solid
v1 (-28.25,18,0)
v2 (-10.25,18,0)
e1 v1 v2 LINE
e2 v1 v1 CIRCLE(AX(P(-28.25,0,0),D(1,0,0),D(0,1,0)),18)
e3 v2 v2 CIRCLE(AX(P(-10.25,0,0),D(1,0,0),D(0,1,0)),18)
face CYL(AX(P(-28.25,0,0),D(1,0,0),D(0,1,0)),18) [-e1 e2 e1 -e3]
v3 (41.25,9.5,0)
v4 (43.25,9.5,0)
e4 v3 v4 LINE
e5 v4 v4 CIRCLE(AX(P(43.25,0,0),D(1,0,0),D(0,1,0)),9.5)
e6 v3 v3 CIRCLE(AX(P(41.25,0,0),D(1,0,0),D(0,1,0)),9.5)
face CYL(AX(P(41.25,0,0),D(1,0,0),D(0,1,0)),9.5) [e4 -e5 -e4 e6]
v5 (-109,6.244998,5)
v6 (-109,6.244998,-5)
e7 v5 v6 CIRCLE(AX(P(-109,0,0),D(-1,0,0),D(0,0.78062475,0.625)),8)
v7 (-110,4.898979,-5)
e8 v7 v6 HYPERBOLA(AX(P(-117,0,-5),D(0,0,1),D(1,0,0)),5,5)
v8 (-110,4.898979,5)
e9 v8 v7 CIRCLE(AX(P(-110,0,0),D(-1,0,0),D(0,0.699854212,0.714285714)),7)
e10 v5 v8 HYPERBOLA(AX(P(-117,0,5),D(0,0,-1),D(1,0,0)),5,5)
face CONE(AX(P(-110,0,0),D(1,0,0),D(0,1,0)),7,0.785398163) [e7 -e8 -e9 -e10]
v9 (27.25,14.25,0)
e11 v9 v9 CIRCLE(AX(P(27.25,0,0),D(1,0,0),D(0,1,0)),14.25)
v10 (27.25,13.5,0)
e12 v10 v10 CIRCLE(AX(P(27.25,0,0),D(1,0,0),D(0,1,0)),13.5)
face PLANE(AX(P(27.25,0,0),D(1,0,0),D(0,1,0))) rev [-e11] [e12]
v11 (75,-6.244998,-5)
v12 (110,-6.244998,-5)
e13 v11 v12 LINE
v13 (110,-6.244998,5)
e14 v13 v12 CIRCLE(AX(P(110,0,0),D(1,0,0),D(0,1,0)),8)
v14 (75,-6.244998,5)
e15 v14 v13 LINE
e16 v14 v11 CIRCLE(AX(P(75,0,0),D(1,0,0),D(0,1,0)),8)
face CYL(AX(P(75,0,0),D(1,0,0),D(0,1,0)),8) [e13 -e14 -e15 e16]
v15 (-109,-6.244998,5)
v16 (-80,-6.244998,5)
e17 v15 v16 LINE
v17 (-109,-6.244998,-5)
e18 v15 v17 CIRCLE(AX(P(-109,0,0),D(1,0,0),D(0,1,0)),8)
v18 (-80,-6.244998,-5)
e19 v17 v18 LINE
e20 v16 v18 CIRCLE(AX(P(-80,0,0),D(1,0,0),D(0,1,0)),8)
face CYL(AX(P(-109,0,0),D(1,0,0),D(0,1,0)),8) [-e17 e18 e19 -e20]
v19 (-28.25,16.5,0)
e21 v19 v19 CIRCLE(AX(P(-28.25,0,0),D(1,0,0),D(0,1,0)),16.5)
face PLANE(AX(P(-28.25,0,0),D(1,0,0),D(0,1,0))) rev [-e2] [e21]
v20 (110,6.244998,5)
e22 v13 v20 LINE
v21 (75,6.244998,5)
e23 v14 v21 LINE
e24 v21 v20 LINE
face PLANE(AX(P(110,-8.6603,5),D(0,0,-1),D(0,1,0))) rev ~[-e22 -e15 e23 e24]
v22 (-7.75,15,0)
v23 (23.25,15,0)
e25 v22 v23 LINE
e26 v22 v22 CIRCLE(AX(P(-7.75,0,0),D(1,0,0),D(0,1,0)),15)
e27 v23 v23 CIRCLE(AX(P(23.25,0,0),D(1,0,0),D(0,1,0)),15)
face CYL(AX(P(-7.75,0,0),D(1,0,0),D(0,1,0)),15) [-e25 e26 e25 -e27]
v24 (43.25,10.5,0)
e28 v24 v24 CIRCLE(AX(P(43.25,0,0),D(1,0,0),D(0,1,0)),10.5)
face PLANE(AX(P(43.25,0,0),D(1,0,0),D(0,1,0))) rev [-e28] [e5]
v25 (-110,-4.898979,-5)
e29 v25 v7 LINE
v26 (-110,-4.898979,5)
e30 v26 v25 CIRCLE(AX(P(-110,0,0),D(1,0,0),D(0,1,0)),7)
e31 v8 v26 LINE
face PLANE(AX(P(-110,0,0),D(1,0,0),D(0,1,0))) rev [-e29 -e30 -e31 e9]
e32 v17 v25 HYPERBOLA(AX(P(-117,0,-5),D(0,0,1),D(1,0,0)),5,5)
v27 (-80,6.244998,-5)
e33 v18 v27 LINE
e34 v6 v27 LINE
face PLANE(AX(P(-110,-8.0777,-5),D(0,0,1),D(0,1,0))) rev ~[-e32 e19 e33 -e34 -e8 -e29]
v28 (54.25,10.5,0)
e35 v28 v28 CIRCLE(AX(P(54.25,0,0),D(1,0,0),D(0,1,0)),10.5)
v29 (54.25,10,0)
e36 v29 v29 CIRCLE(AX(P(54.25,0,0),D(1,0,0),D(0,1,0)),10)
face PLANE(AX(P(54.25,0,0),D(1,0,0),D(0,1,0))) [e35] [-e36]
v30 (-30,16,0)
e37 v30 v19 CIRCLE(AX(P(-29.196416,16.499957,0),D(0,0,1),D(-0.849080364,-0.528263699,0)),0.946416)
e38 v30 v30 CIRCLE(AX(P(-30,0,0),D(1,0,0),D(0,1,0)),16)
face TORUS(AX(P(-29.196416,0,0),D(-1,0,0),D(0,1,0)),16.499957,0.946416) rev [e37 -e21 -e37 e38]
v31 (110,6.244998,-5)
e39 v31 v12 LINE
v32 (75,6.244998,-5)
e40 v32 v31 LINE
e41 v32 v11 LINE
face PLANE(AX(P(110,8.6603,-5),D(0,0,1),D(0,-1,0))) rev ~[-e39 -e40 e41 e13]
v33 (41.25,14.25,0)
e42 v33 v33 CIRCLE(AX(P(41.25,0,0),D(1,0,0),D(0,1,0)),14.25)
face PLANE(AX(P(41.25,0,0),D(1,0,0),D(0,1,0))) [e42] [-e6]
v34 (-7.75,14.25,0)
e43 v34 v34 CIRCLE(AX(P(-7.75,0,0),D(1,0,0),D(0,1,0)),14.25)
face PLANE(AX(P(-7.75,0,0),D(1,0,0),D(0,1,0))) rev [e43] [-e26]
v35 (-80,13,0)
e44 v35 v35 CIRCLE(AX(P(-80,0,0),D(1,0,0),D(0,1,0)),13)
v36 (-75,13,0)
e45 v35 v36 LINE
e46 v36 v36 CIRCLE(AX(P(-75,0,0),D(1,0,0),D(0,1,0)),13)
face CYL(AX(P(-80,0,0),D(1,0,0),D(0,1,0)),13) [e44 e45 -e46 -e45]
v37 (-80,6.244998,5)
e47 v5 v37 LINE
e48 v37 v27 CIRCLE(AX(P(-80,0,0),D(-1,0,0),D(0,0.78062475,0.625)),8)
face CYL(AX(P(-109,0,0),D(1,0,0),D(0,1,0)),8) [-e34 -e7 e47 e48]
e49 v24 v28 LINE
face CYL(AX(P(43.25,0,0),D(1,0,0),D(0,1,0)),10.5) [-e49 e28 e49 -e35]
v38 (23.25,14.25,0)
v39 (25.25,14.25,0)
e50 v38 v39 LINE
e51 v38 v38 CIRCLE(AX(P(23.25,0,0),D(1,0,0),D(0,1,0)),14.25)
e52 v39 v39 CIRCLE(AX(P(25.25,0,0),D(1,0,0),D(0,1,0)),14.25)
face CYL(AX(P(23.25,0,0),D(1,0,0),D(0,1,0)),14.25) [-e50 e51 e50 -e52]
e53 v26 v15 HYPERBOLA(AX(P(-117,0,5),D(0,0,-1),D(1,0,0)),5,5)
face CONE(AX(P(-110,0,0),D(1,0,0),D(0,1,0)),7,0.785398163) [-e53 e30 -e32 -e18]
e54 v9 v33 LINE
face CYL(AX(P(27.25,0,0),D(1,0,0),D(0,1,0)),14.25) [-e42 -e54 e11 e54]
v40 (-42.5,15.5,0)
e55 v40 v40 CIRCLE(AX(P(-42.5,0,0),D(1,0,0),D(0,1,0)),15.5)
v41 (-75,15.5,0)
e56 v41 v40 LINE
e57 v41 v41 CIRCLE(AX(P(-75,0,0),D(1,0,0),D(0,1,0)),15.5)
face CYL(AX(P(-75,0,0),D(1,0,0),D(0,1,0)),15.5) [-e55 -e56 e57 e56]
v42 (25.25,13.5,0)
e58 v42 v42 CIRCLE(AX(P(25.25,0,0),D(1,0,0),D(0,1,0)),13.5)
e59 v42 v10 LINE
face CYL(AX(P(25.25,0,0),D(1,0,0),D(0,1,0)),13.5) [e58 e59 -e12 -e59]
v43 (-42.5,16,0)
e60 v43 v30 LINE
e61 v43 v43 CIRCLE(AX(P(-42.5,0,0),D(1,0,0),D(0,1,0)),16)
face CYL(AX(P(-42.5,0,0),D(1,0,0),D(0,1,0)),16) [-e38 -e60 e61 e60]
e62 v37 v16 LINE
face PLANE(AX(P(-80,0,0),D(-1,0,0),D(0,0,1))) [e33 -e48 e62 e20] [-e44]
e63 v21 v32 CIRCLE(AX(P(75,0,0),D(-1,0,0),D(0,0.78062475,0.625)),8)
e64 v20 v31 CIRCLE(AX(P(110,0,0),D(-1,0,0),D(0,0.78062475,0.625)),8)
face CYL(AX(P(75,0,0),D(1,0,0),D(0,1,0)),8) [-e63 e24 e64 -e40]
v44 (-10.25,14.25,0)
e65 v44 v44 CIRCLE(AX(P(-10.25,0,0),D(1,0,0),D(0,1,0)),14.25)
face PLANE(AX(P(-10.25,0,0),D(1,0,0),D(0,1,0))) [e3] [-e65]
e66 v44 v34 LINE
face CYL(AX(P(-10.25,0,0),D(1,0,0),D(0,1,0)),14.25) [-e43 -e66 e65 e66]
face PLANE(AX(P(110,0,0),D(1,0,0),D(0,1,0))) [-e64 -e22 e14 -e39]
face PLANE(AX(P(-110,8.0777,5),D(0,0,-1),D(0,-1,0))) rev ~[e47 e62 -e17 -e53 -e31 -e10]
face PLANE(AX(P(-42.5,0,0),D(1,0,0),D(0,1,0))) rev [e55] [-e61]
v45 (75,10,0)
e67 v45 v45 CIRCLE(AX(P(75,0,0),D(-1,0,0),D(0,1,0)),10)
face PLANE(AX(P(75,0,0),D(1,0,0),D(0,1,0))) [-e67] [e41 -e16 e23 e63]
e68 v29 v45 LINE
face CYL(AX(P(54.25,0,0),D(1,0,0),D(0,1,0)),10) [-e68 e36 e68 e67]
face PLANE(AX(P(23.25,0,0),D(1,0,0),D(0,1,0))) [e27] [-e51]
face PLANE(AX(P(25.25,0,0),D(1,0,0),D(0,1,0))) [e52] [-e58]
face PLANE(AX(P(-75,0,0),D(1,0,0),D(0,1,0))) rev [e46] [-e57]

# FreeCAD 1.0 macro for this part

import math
import FreeCAD as App
import Part
import Sketcher

V = App.Vector

doc = App.newDocument("Part")
params = doc.addObject("Spreadsheet::Sheet", "Params")
for row, (alias, value) in enumerate([
    ("sketch1_width", "220 mm"),
    ("sketch1_width2", "35 mm"),
    ("sketch1_width3", "11 mm"),
    ("sketch1_width4", "2 mm"),
    ("sketch1_width5", "14 mm"),
    ("revolution_angle", "360 deg"),
    ("sketch2_height", "10 mm"),
    ("sketch2_radius", "9.5 mm"),
    ("pocket1_length", "30 mm"),
    ("sketch3_radius", "10 mm"),
    ("sketch3_height", "10 mm"),
    ("pocket2_length", "35 mm"),
], start=1):
    params.set(f"A{row}", alias)
    params.set(f"B{row}", "=" + value)
    params.setAlias(f"B{row}", alias)

body = doc.addObject("PartDesign::Body", "Body")

sketch1 = body.newObject("Sketcher::SketchObject", "Sketch")
sketch1.AttachmentSupport = (doc.getObject("XY_Plane"), [""])
sketch1.MapMode = "FlatFace"
sketch1.addGeometry([
    Part.LineSegment(V(-110, 7, 0), V(-110, 0, 0)),
    Part.LineSegment(V(-110, 0, 0), V(110, 0, 0)),
    Part.LineSegment(V(110, 0, 0), V(110, 8, 0)),
    Part.LineSegment(V(110, 8, 0), V(75, 8, 0)),
    Part.LineSegment(V(75, 8, 0), V(75, 10, 0)),
    Part.LineSegment(V(75, 10, 0), V(54.2, 10, 0)),
    Part.LineSegment(V(54.2, 10, 0), V(54.2, 10.5, 0)),
    Part.LineSegment(V(54.2, 10.5, 0), V(43.2, 10.5, 0)),
    Part.LineSegment(V(43.2, 10.5, 0), V(43.2, 9.5, 0)),
    Part.LineSegment(V(43.2, 9.5, 0), V(41.2, 9.5, 0)),
    Part.LineSegment(V(41.2, 9.5, 0), V(41.2, 14.2, 0)),
    Part.LineSegment(V(41.2, 14.2, 0), V(27.2, 14.2, 0)),
    Part.LineSegment(V(27.2, 14.2, 0), V(27.2, 13.5, 0)),
    Part.LineSegment(V(27.2, 13.5, 0), V(25.2, 13.5, 0)),
    Part.LineSegment(V(25.2, 13.5, 0), V(25.2, 14.2, 0)),
    Part.LineSegment(V(25.2, 14.2, 0), V(23.2, 14.2, 0)),
    Part.LineSegment(V(23.2, 14.2, 0), V(23.2, 15, 0)),
    Part.LineSegment(V(23.2, 15, 0), V(-7.8, 15, 0)),
    Part.LineSegment(V(-7.8, 15, 0), V(-7.8, 14.2, 0)),
    Part.LineSegment(V(-7.8, 14.2, 0), V(-10.2, 14.2, 0)),
    Part.LineSegment(V(-10.2, 14.2, 0), V(-10.2, 18, 0)),
    Part.LineSegment(V(-10.2, 18, 0), V(-28.2, 18, 0)),
    Part.LineSegment(V(-28.2, 18, 0), V(-28.2, 16.5, 0)),
    Part.ArcOfCircle(Part.Circle(V(-29.2, 16.5, 0), V(0, 0, 1), 0.9), math.radians(-148), math.radians(0)),
    Part.LineSegment(V(-30, 16, 0), V(-42.5, 16, 0)),
    Part.LineSegment(V(-42.5, 16, 0), V(-42.5, 15.5, 0)),
    Part.LineSegment(V(-42.5, 15.5, 0), V(-75, 15.5, 0)),
    Part.LineSegment(V(-75, 15.5, 0), V(-75, 13, 0)),
    Part.LineSegment(V(-75, 13, 0), V(-80, 13, 0)),
    Part.LineSegment(V(-80, 13, 0), V(-80, 8, 0)),
    Part.LineSegment(V(-80, 8, 0), V(-109, 8, 0)),
    Part.LineSegment(V(-109, 8, 0), V(-110, 7, 0)),
], False)
sketch1.addConstraint([
    Sketcher.Constraint("Coincident", 0, 2, 1, 1),
    Sketcher.Constraint("Coincident", 1, 2, 2, 1),
    Sketcher.Constraint("Coincident", 2, 2, 3, 1),
    Sketcher.Constraint("Coincident", 3, 2, 4, 1),
    Sketcher.Constraint("Coincident", 4, 2, 5, 1),
    Sketcher.Constraint("Coincident", 5, 2, 6, 1),
    Sketcher.Constraint("Coincident", 6, 2, 7, 1),
    Sketcher.Constraint("Coincident", 7, 2, 8, 1),
    Sketcher.Constraint("Coincident", 8, 2, 9, 1),
    Sketcher.Constraint("Coincident", 9, 2, 10, 1),
    Sketcher.Constraint("Coincident", 10, 2, 11, 1),
    Sketcher.Constraint("Coincident", 11, 2, 12, 1),
    Sketcher.Constraint("Coincident", 12, 2, 13, 1),
    Sketcher.Constraint("Coincident", 13, 2, 14, 1),
    Sketcher.Constraint("Coincident", 14, 2, 15, 1),
    Sketcher.Constraint("Coincident", 15, 2, 16, 1),
    Sketcher.Constraint("Coincident", 16, 2, 17, 1),
    Sketcher.Constraint("Coincident", 17, 2, 18, 1),
    Sketcher.Constraint("Coincident", 18, 2, 19, 1),
    Sketcher.Constraint("Coincident", 19, 2, 20, 1),
    Sketcher.Constraint("Coincident", 20, 2, 21, 1),
    Sketcher.Constraint("Coincident", 21, 2, 22, 1),
    Sketcher.Constraint("Tangent", 22, 2, 23, 2),
    Sketcher.Constraint("Coincident", 23, 1, 24, 1),
    Sketcher.Constraint("Coincident", 24, 2, 25, 1),
    Sketcher.Constraint("Coincident", 25, 2, 26, 1),
    Sketcher.Constraint("Coincident", 26, 2, 27, 1),
    Sketcher.Constraint("Coincident", 27, 2, 28, 1),
    Sketcher.Constraint("Coincident", 28, 2, 29, 1),
    Sketcher.Constraint("Coincident", 29, 2, 30, 1),
    Sketcher.Constraint("Coincident", 30, 2, 31, 1),
    Sketcher.Constraint("Coincident", 31, 2, 0, 1),
    Sketcher.Constraint("Vertical", 0),
    Sketcher.Constraint("Horizontal", 1),
    Sketcher.Constraint("Vertical", 2),
    Sketcher.Constraint("Horizontal", 3),
    Sketcher.Constraint("Vertical", 4),
    Sketcher.Constraint("Horizontal", 5),
    Sketcher.Constraint("Vertical", 6),
    Sketcher.Constraint("Horizontal", 7),
    Sketcher.Constraint("Vertical", 8),
    Sketcher.Constraint("Horizontal", 9),
    Sketcher.Constraint("Vertical", 10),
    Sketcher.Constraint("Horizontal", 11),
    Sketcher.Constraint("Vertical", 12),
    Sketcher.Constraint("Horizontal", 13),
    Sketcher.Constraint("Vertical", 14),
    Sketcher.Constraint("Horizontal", 15),
    Sketcher.Constraint("Vertical", 16),
    Sketcher.Constraint("Horizontal", 17),
    Sketcher.Constraint("Vertical", 18),
    Sketcher.Constraint("Horizontal", 19),
    Sketcher.Constraint("Vertical", 20),
    Sketcher.Constraint("Horizontal", 21),
    Sketcher.Constraint("Vertical", 22),
    Sketcher.Constraint("Horizontal", 24),
    Sketcher.Constraint("Vertical", 25),
    Sketcher.Constraint("Horizontal", 26),
    Sketcher.Constraint("Vertical", 27),
    Sketcher.Constraint("Horizontal", 28),
    Sketcher.Constraint("Vertical", 29),
    Sketcher.Constraint("Horizontal", 30),
    Sketcher.Constraint("Symmetric", 0, 2, 1, 2, -1, 1),
    Sketcher.Constraint("Horizontal", 11, 2, 14, 2),
    Sketcher.Constraint("Horizontal", 15, 2, 18, 2),
    Sketcher.Constraint("Horizontal", 3, 2, 29, 2),
    Sketcher.Constraint("Equal", 9, 13),
    Sketcher.Constraint("Equal", 13, 15),
    Sketcher.Constraint("Equal", 15, 4),
    Sketcher.Constraint("Equal", 14, 16),
    Sketcher.Constraint("Equal", 6, 25),
    Sketcher.Constraint("Equal", 19, 27),
    Sketcher.Constraint("Equal", 28, 29),
    Sketcher.Constraint("DistanceX", 1, 1, 1, 2, 220.0),
    Sketcher.Constraint("DistanceX", 3, 2, 3, 1, 35.0),
    Sketcher.Constraint("DistanceX", 7, 2, 7, 1, 11.0),
    Sketcher.Constraint("DistanceX", 9, 2, 9, 1, 2.0),
    Sketcher.Constraint("DistanceX", 11, 2, 11, 1, 14.0),
    Sketcher.Constraint("DistanceX", 17, 2, 17, 1, 31.0),
    Sketcher.Constraint("DistanceX", 21, 2, 21, 1, 18.0),
    Sketcher.Constraint("DistanceY", 2, 1, 2, 2, 8.0),
    Sketcher.Constraint("DistanceY", 8, 2, 8, 1, 1.0),
    Sketcher.Constraint("DistanceX", 19, 2, 19, 1, 2.5),
    Sketcher.Constraint("DistanceX", 24, 2, 24, 1, 12.5),
    Sketcher.Constraint("DistanceX", 26, 2, 26, 1, 32.5),
    Sketcher.Constraint("DistanceY", 6, 1, 6, 2, 0.5),
    Sketcher.Constraint("DistanceY", -1, 1, 16, 2, 15.0),
    Sketcher.Constraint("DistanceY", -1, 1, 20, 2, 18.0),
    Sketcher.Constraint("DistanceX", 23, 1, -1, 1, 30.0),
    Sketcher.Constraint("DistanceY", -1, 1, 23, 1, 16.0),
    Sketcher.Constraint("DistanceY", 25, 2, 23, 3, 1.0),
    Sketcher.Constraint("DistanceX", 0, 2, 30, 2, 1.0),
    Sketcher.Constraint("DistanceY", 31, 2, 30, 2, 1.0),
    Sketcher.Constraint("DistanceY", -1, 1, 12, 2, 13.5),
    Sketcher.Constraint("DistanceX", 24, 2, 22, 2, 14.25),
])
sketch1.setExpression("Constraints[73]", "Params.sketch1_width")
sketch1.setExpression("Constraints[74]", "Params.sketch1_width2")
sketch1.setExpression("Constraints[75]", "Params.sketch1_width3")
sketch1.setExpression("Constraints[76]", "Params.sketch1_width4")
sketch1.setExpression("Constraints[77]", "Params.sketch1_width5")
revolution = body.newObject("PartDesign::Revolution", "Revolution")
revolution.Profile = sketch1
revolution.ReferenceAxis = (sketch1, ["H_Axis"])
revolution.setExpression("Angle", "Params.revolution_angle")

sketch2 = body.newObject("Sketcher::SketchObject", "Sketch001")
sketch2.AttachmentSupport = (doc.getObject("YZ_Plane"), [""])
sketch2.MapMode = "FlatFace"
sketch2.AttachmentOffset = App.Placement(V(0, 0, -110), App.Rotation())
sketch2.addGeometry([
    Part.ArcOfCircle(Part.Circle(V(0, 0, 0), V(0, 0, 1), 10), math.radians(32), math.radians(148)),
    Part.LineSegment(V(-8, 5, 0), V(8, 5, 0)),
    Part.LineSegment(V(8, -5, 0), V(8, 5, 0)),
    Part.ArcOfCircle(Part.Circle(V(0, 0, 0), V(0, 0, 1), 10), math.radians(-32), math.radians(32)),
    Part.ArcOfCircle(Part.Circle(V(0, 0, 0), V(0, 0, 1), 10), math.radians(148), math.radians(212)),
    Part.LineSegment(V(-8, -5, 0), V(-8, 5, 0)),
    Part.LineSegment(V(-8, -5, 0), V(8, -5, 0)),
    Part.ArcOfCircle(Part.Circle(V(0, 0, 0), V(0, 0, 1), 10), math.radians(-148), math.radians(-32)),
], False)
sketch2.addConstraint([
    Sketcher.Constraint("Coincident", 0, 1, 1, 2),
    Sketcher.Constraint("Coincident", 1, 1, 0, 2),
    Sketcher.Constraint("Coincident", 2, 1, 3, 1),
    Sketcher.Constraint("Coincident", 3, 2, 2, 2),
    Sketcher.Constraint("Coincident", 4, 1, 5, 2),
    Sketcher.Constraint("Coincident", 5, 1, 4, 2),
    Sketcher.Constraint("Coincident", 6, 1, 7, 1),
    Sketcher.Constraint("Coincident", 7, 2, 6, 2),
    Sketcher.Constraint("Horizontal", 1),
    Sketcher.Constraint("Vertical", 2),
    Sketcher.Constraint("Vertical", 5),
    Sketcher.Constraint("Horizontal", 6),
    Sketcher.Constraint("Coincident", 0, 3, -1, 1),
    Sketcher.Constraint("Coincident", 3, 3, -1, 1),
    Sketcher.Constraint("Coincident", 4, 3, -1, 1),
    Sketcher.Constraint("Coincident", 7, 3, -1, 1),
    Sketcher.Constraint("Coincident", 3, 2, 0, 1),
    Sketcher.Constraint("Coincident", 4, 1, 1, 1),
    Sketcher.Constraint("Coincident", 6, 1, 5, 1),
    Sketcher.Constraint("DistanceY", 2, 1, 2, 2, 10.0),
    Sketcher.Constraint("Radius", 0, 9.5),
])
sketch2.setExpression("Constraints[19]", "Params.sketch2_height")
sketch2.setExpression("Constraints[20]", "Params.sketch2_radius")
pocket1 = body.newObject("PartDesign::Pocket", "Pocket")
pocket1.Profile = sketch2
pocket1.setExpression("Length", "Params.pocket1_length")
pocket1.Reversed = True

sketch3 = body.newObject("Sketcher::SketchObject", "Sketch002")
sketch3.AttachmentSupport = (doc.getObject("YZ_Plane"), [""])
sketch3.MapMode = "FlatFace"
sketch3.AttachmentOffset = App.Placement(V(0, 0, 110), App.Rotation())
sketch3.addGeometry([
    Part.ArcOfCircle(Part.Circle(V(0, 0, 0), V(0, 0, 1), 10), math.radians(150), math.radians(210)),
    Part.LineSegment(V(-9, 5, 0), V(-9, -5, 0)),
    Part.LineSegment(V(9, -5, 0), V(-9, -5, 0)),
    Part.ArcOfCircle(Part.Circle(V(0, 0, 0), V(0, 0, 1), 10), math.radians(-150), math.radians(-30)),
    Part.ArcOfCircle(Part.Circle(V(0, 0, 0), V(0, 0, 1), 10), math.radians(30), math.radians(150)),
    Part.LineSegment(V(9, 5, 0), V(-9, 5, 0)),
    Part.LineSegment(V(9, 5, 0), V(9, -5, 0)),
    Part.ArcOfCircle(Part.Circle(V(0, 0, 0), V(0, 0, 1), 10), math.radians(-30), math.radians(30)),
], False)
sketch3.addConstraint([
    Sketcher.Constraint("Coincident", 0, 1, 1, 1),
    Sketcher.Constraint("Coincident", 1, 2, 0, 2),
    Sketcher.Constraint("Coincident", 2, 1, 3, 2),
    Sketcher.Constraint("Coincident", 3, 1, 2, 2),
    Sketcher.Constraint("Coincident", 4, 1, 5, 1),
    Sketcher.Constraint("Coincident", 5, 2, 4, 2),
    Sketcher.Constraint("Coincident", 6, 1, 7, 2),
    Sketcher.Constraint("Coincident", 7, 1, 6, 2),
    Sketcher.Constraint("Vertical", 1),
    Sketcher.Constraint("Horizontal", 2),
    Sketcher.Constraint("Horizontal", 5),
    Sketcher.Constraint("Vertical", 6),
    Sketcher.Constraint("Coincident", 0, 3, -1, 1),
    Sketcher.Constraint("Coincident", 3, 3, -1, 1),
    Sketcher.Constraint("Coincident", 4, 3, -1, 1),
    Sketcher.Constraint("Coincident", 7, 3, -1, 1),
    Sketcher.Constraint("Coincident", 3, 1, 1, 2),
    Sketcher.Constraint("Coincident", 5, 2, 0, 1),
    Sketcher.Constraint("Coincident", 6, 1, 4, 1),
    Sketcher.Constraint("Radius", 0, 10.0),
    Sketcher.Constraint("DistanceY", 1, 2, 1, 1, 10.0),
])
sketch3.setExpression("Constraints[19]", "Params.sketch3_radius")
sketch3.setExpression("Constraints[20]", "Params.sketch3_height")
pocket2 = body.newObject("PartDesign::Pocket", "Pocket001")
pocket2.Profile = sketch3
pocket2.setExpression("Length", "Params.pocket2_length")

doc.recompute()
